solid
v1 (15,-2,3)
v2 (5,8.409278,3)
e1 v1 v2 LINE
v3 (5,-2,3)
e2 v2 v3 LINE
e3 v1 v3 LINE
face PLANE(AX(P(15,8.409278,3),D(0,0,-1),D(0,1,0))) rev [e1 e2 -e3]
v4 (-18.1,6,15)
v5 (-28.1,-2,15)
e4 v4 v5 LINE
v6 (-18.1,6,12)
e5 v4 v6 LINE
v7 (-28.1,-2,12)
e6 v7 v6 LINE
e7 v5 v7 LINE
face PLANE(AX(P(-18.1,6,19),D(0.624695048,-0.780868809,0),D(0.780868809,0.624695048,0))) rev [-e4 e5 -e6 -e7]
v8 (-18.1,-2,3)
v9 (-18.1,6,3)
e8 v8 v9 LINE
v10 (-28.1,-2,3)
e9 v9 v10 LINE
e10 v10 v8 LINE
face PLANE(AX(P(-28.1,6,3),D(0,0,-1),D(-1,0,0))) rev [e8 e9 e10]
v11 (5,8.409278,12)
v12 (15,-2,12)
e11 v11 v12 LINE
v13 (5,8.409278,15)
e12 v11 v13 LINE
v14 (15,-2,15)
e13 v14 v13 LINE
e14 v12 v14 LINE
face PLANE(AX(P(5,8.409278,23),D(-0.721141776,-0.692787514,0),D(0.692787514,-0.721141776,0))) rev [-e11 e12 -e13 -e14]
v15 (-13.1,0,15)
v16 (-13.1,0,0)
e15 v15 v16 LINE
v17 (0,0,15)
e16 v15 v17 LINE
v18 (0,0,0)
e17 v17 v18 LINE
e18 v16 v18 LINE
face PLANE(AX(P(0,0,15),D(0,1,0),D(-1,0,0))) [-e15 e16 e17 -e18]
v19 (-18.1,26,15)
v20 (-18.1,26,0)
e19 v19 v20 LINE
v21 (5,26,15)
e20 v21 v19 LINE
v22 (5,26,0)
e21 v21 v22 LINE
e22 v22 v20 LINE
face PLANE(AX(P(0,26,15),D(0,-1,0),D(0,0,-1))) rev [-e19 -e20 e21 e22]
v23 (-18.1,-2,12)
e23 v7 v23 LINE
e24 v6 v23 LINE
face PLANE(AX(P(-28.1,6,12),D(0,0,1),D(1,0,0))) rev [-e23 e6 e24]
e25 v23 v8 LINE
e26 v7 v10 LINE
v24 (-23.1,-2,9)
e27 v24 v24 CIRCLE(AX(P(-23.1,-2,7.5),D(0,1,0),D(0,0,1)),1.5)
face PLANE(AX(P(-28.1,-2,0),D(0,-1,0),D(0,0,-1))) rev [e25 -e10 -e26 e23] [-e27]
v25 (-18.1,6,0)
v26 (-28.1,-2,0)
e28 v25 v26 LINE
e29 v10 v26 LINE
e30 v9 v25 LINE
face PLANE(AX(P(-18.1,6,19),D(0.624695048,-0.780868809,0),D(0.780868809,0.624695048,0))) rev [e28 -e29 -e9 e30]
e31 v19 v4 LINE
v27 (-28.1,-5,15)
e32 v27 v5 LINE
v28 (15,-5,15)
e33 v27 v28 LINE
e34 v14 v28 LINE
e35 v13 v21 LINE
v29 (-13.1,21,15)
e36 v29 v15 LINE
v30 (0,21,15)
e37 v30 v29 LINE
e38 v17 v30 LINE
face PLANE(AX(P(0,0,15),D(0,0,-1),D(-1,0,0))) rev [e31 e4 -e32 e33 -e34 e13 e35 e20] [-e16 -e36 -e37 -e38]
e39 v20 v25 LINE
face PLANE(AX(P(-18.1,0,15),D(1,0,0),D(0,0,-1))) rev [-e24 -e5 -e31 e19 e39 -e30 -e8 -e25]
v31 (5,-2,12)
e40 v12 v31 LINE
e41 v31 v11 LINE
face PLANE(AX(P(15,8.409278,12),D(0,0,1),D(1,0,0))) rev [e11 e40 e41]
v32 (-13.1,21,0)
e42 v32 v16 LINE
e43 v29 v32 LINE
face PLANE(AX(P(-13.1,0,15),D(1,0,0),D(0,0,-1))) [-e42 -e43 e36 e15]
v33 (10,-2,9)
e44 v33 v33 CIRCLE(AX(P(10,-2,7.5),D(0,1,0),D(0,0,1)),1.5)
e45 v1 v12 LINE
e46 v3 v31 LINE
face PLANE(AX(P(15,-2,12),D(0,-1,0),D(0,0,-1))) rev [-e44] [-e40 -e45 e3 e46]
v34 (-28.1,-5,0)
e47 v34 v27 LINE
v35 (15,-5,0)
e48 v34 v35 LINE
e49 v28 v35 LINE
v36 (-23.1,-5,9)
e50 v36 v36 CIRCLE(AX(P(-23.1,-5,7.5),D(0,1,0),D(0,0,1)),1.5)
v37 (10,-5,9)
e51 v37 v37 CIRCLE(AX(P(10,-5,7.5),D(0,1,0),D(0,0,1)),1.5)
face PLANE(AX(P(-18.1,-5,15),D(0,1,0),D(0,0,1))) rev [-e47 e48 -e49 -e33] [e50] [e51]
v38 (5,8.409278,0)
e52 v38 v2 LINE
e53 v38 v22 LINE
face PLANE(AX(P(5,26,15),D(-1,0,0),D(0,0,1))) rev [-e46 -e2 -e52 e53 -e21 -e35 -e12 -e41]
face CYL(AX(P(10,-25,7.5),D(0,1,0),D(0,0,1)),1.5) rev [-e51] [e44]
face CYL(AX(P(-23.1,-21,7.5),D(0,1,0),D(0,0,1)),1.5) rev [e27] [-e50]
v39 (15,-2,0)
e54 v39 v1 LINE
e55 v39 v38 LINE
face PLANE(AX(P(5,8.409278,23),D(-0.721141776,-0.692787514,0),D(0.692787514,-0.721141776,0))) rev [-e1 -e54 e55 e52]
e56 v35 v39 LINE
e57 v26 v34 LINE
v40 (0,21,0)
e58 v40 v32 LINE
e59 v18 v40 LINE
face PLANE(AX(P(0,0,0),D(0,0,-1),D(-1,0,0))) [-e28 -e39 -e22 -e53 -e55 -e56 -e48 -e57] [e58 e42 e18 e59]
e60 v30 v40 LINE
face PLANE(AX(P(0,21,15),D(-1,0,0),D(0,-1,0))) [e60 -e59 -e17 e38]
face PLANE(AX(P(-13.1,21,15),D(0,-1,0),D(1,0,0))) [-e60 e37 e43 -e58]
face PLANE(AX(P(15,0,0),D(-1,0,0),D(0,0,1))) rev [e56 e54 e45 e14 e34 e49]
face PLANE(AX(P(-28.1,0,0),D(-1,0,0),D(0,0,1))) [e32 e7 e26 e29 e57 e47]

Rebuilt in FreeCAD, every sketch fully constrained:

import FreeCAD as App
import Part
import Sketcher
from FreeCAD import Vector
Q = App.Units.Quantity


def add_polygon(sketch, points):
    """Adds a closed chain of lines whose ends are joined by coincident constraints."""
    first, n = sketch.GeometryCount, len(points)
    for a, b in zip(points, points[1:] + points[:1]):
        sketch.addGeometry(Part.LineSegment(App.Vector(*a, 0), App.Vector(*b, 0)), False)
    for i in range(n):
        sketch.addConstraint(Sketcher.Constraint("Coincident", first + i, 2, first + (i + 1) % n, 1))

doc = App.newDocument("Part")
params = doc.addObject("Spreadsheet::Sheet", "Params")
for row, (alias, value) in enumerate([
    ("sketch1_height", "31 mm"),
    ("sketch1_height2", "21 mm"),
    ("sketch1_width", "23.1 mm"),
    ("sketch1_width2", "13.1 mm"),
    ("pad1_length", "15 mm"),
    ("sketch2_width", "3 mm"),
    ("sketch2_height", "15 mm"),
    ("pad2_length", "10 mm"),
    ("sketch3_width", "8 mm"),
    ("sketch3_height", "3 mm"),
    ("pad3_length", "10 mm"),
    ("sketch4_width", "10 mm"),
    ("sketch4_height", "8 mm"),
    ("pocket1_length", "19 mm"),
    ("sketch5_diameter", "3 mm"),
    ("pocket2_length", "19 mm"),
    ("sketch6_height", "15 mm"),
    ("sketch6_height2", "3 mm"),
    ("pad4_length", "10 mm"),
    ("sketch7_width", "10 mm"),
    ("pocket3_length", "23 mm"),
    ("sketch8_diameter", "3 mm"),
    ("pocket4_length", "23 mm"),
], start=1):
    params.set(f"A{row}", alias)
    params.set(f"B{row}", "=" + value)
    params.setAlias(f"B{row}", alias)

body = doc.addObject("PartDesign::Body", "Body")

sketch1 = body.newObject("Sketcher::SketchObject", "Sketch")
sketch1.AttachmentSupport = (doc.getObject("XY_Plane"), [""])
sketch1.MapMode = "FlatFace"
add_polygon(sketch1, [(5, 26), (-18, 26), (-18, -5), (5, -5)])
add_polygon(sketch1, [(-13, 0), (-13, 21), (0, 21), (0, 0)])
sketch1.addConstraint([
    Sketcher.Constraint("Horizontal", 0),
    Sketcher.Constraint("Vertical", 1),
    Sketcher.Constraint("Horizontal", 2),
    Sketcher.Constraint("Vertical", 3),
    Sketcher.Constraint("Vertical", 4),
    Sketcher.Constraint("Horizontal", 5),
    Sketcher.Constraint("Vertical", 6),
    Sketcher.Constraint("Horizontal", 7),
    Sketcher.Constraint("Coincident", 6, 2, -1, 1),
    Sketcher.Constraint("DistanceY", 1, 2, 1, 1, Q("31 mm")),
    Sketcher.Constraint("DistanceY", 4, 1, 4, 2, Q("21 mm")),
    Sketcher.Constraint("DistanceX", 0, 2, 0, 1, Q("23.1 mm")),
    Sketcher.Constraint("DistanceX", 5, 1, 5, 2, Q("13.1 mm")),
    Sketcher.Constraint("DistanceY", -1, 1, 0, 2, Q("26 mm")),
    Sketcher.Constraint("DistanceX", -1, 1, 2, 2, Q("5 mm")),
])
sketch1.setExpression("Constraints[17]", "Params.sketch1_height")
sketch1.setExpression("Constraints[18]", "Params.sketch1_height2")
sketch1.setExpression("Constraints[19]", "Params.sketch1_width")
sketch1.setExpression("Constraints[20]", "Params.sketch1_width2")
pad1 = body.newObject("PartDesign::Pad", "Pad")
pad1.Profile = sketch1
pad1.setExpression("Length", "Params.pad1_length")

sketch2 = body.newObject("Sketcher::SketchObject", "Sketch001")
sketch2.AttachmentSupport = (doc.getObject("YZ_Plane"), [""])
sketch2.MapMode = "FlatFace"
sketch2.AttachmentOffset = App.Placement(Vector(0, 0, -18.1), App.Rotation())
add_polygon(sketch2, [(-2, 0), (-5, 0), (-5, 15), (-2, 15)])
sketch2.addConstraint([
    Sketcher.Constraint("Horizontal", 0),
    Sketcher.Constraint("Vertical", 1),
    Sketcher.Constraint("Horizontal", 2),
    Sketcher.Constraint("Vertical", 3),
    Sketcher.Constraint("PointOnObject", 0, 2, -1),
    Sketcher.Constraint("DistanceX", 0, 2, 0, 1, Q("3 mm")),
    Sketcher.Constraint("DistanceY", 1, 1, 1, 2, Q("15 mm")),
    Sketcher.Constraint("DistanceX", 0, 2, -1, 1, Q("5 mm")),
])
sketch2.setExpression("Constraints[9]", "Params.sketch2_width")
sketch2.setExpression("Constraints[10]", "Params.sketch2_height")
pad2 = body.newObject("PartDesign::Pad", "Pad001")
pad2.Profile = sketch2
pad2.setExpression("Length", "Params.pad2_length")
pad2.Reversed = True

sketch3 = body.newObject("Sketcher::SketchObject", "Sketch002")
sketch3.AttachmentSupport = (doc.getObject("YZ_Plane"), [""])
sketch3.MapMode = "FlatFace"
sketch3.AttachmentOffset = App.Placement(Vector(0, 0, -18.1), App.Rotation())
add_polygon(sketch3, [(6, 0), (-2, 0), (-2, 3), (6, 3)])
add_polygon(sketch3, [(6, 12), (-2, 12), (-2, 15), (6, 15)])
sketch3.addConstraint([
    Sketcher.Constraint("Horizontal", 0),
    Sketcher.Constraint("Vertical", 1),
    Sketcher.Constraint("Horizontal", 2),
    Sketcher.Constraint("Vertical", 3),
    Sketcher.Constraint("Horizontal", 4),
    Sketcher.Constraint("Vertical", 5),
    Sketcher.Constraint("Horizontal", 6),
    Sketcher.Constraint("Vertical", 7),
    Sketcher.Constraint("PointOnObject", 0, 2, -1),
    Sketcher.Constraint("Vertical", 1, 2, 4, 2),
    Sketcher.Constraint("Vertical", 3, 2, 6, 2),
    Sketcher.Constraint("Equal", 3, 5),
    Sketcher.Constraint("DistanceX", 0, 2, 0, 1, Q("8 mm")),
    Sketcher.Constraint("DistanceY", 1, 1, 1, 2, Q("3 mm")),
    Sketcher.Constraint("DistanceX", 0, 2, -1, 1, Q("2 mm")),
    Sketcher.Constraint("DistanceY", -1, 1, 4, 2, Q("12 mm")),
])
sketch3.setExpression("Constraints[20]", "Params.sketch3_width")
sketch3.setExpression("Constraints[21]", "Params.sketch3_height")
pad3 = body.newObject("PartDesign::Pad", "Pad002")
pad3.Profile = sketch3
pad3.setExpression("Length", "Params.pad3_length")
pad3.Reversed = True

sketch4 = body.newObject("Sketcher::SketchObject", "Sketch003")
sketch4.AttachmentSupport = (doc.getObject("XY_Plane"), [""])
sketch4.MapMode = "FlatFace"
add_polygon(sketch4, [(-18, 6), (-28, -2), (-28, 6)])
sketch4.addConstraint([
    Sketcher.Constraint("Vertical", 1),
    Sketcher.Constraint("Horizontal", 2),
    Sketcher.Constraint("DistanceX", 2, 1, 2, 2, Q("10 mm")),
    Sketcher.Constraint("DistanceY", 1, 1, 1, 2, Q("8 mm")),
    Sketcher.Constraint("DistanceY", 0, 2, -1, 1, Q("2 mm")),
    Sketcher.Constraint("DistanceX", 0, 2, -1, 1, Q("28.1 mm")),
])
sketch4.setExpression("Constraints[5]", "Params.sketch4_width")
sketch4.setExpression("Constraints[6]", "Params.sketch4_height")
pocket1 = body.newObject("PartDesign::Pocket", "Pocket")
pocket1.Profile = sketch4
pocket1.setExpression("Length", "Params.pocket1_length")
pocket1.Reversed = True

sketch5 = body.newObject("Sketcher::SketchObject", "Sketch004")
sketch5.AttachmentSupport = (doc.getObject("XZ_Plane"), [""])
sketch5.MapMode = "FlatFace"
sketch5.AttachmentOffset = App.Placement(Vector(0, 0, 2), App.Rotation())
sketch5.addGeometry(Part.Circle(Vector(-23.1, 7.5, 0), Vector(0, 0, 1), 1.5), False)
sketch5.addConstraint([
    Sketcher.Constraint("Diameter", 0, Q("3 mm")),
    Sketcher.Constraint("DistanceX", 0, 3, -1, 1, Q("23.1 mm")),
    Sketcher.Constraint("DistanceY", -1, 1, 0, 3, Q("7.5 mm")),
])
sketch5.setExpression("Constraints[0]", "Params.sketch5_diameter")
pocket2 = body.newObject("PartDesign::Pocket", "Pocket001")
pocket2.Profile = sketch5
pocket2.setExpression("Length", "Params.pocket2_length")
pocket2.Reversed = True

sketch6 = body.newObject("Sketcher::SketchObject", "Sketch005")
sketch6.AttachmentSupport = (doc.getObject("YZ_Plane"), [""])
sketch6.MapMode = "FlatFace"
sketch6.AttachmentOffset = App.Placement(Vector(0, 0, 5), App.Rotation())
add_polygon(sketch6, [(8.4, 15), (-5, 15), (-5, 0), (8.4, 0), (8.4, 3), (-2, 3), (-2, 12), (8.4, 12)])
sketch6.addConstraint([
    Sketcher.Constraint("Horizontal", 0),
    Sketcher.Constraint("Vertical", 1),
    Sketcher.Constraint("Horizontal", 2),
    Sketcher.Constraint("Vertical", 3),
    Sketcher.Constraint("Horizontal", 4),
    Sketcher.Constraint("Vertical", 5),
    Sketcher.Constraint("Horizontal", 6),
    Sketcher.Constraint("Vertical", 7),
    Sketcher.Constraint("PointOnObject", 1, 2, -1),
    Sketcher.Constraint("Vertical", 3, 2, 6, 2),
    Sketcher.Constraint("Equal", 3, 7),
    Sketcher.Constraint("DistanceY", 1, 2, 1, 1, Q("15 mm")),
    Sketcher.Constraint("DistanceY", 3, 1, 3, 2, Q("3 mm")),
    Sketcher.Constraint("DistanceX", 0, 2, -1, 1, Q("5 mm")),
    Sketcher.Constraint("DistanceX", 4, 2, -1, 1, Q("2 mm")),
    Sketcher.Constraint("DistanceX", 0, 2, 0, 1, Q("13.409278 mm")),
])
sketch6.setExpression("Constraints[19]", "Params.sketch6_height")
sketch6.setExpression("Constraints[20]", "Params.sketch6_height2")
pad4 = body.newObject("PartDesign::Pad", "Pad003")
pad4.Profile = sketch6
pad4.setExpression("Length", "Params.pad4_length")

sketch7 = body.newObject("Sketcher::SketchObject", "Sketch006")
sketch7.AttachmentSupport = (doc.getObject("XY_Plane"), [""])
sketch7.MapMode = "FlatFace"
add_polygon(sketch7, [(15, -2), (5, 8), (15, 8)])
sketch7.addConstraint([
    Sketcher.Constraint("Horizontal", 1),
    Sketcher.Constraint("Vertical", 2),
    Sketcher.Constraint("DistanceX", 1, 1, 1, 2, Q("10 mm")),
    Sketcher.Constraint("DistanceX", -1, 1, 0, 2, Q("5 mm")),
    Sketcher.Constraint("DistanceY", 2, 2, -1, 1, Q("2 mm")),
    Sketcher.Constraint("Distance", 0, Q("14.43444 mm")),
])
sketch7.setExpression("Constraints[5]", "Params.sketch7_width")
pocket3 = body.newObject("PartDesign::Pocket", "Pocket002")
pocket3.Profile = sketch7
pocket3.setExpression("Length", "Params.pocket3_length")
pocket3.Reversed = True

sketch8 = body.newObject("Sketcher::SketchObject", "Sketch007")
sketch8.AttachmentSupport = (doc.getObject("XZ_Plane"), [""])
sketch8.MapMode = "FlatFace"
sketch8.AttachmentOffset = App.Placement(Vector(0, 0, 2), App.Rotation())
sketch8.addGeometry(Part.Circle(Vector(10, 7.5, 0), Vector(0, 0, 1), 1.5), False)
sketch8.addConstraint([
    Sketcher.Constraint("Diameter", 0, Q("3 mm")),
    Sketcher.Constraint("DistanceX", -1, 1, 0, 3, Q("10 mm")),
    Sketcher.Constraint("DistanceY", -1, 1, 0, 3, Q("7.5 mm")),
])
sketch8.setExpression("Constraints[0]", "Params.sketch8_diameter")
pocket4 = body.newObject("PartDesign::Pocket", "Pocket003")
pocket4.Profile = sketch8
pocket4.setExpression("Length", "Params.pocket4_length")
pocket4.Reversed = True

doc.recompute()
